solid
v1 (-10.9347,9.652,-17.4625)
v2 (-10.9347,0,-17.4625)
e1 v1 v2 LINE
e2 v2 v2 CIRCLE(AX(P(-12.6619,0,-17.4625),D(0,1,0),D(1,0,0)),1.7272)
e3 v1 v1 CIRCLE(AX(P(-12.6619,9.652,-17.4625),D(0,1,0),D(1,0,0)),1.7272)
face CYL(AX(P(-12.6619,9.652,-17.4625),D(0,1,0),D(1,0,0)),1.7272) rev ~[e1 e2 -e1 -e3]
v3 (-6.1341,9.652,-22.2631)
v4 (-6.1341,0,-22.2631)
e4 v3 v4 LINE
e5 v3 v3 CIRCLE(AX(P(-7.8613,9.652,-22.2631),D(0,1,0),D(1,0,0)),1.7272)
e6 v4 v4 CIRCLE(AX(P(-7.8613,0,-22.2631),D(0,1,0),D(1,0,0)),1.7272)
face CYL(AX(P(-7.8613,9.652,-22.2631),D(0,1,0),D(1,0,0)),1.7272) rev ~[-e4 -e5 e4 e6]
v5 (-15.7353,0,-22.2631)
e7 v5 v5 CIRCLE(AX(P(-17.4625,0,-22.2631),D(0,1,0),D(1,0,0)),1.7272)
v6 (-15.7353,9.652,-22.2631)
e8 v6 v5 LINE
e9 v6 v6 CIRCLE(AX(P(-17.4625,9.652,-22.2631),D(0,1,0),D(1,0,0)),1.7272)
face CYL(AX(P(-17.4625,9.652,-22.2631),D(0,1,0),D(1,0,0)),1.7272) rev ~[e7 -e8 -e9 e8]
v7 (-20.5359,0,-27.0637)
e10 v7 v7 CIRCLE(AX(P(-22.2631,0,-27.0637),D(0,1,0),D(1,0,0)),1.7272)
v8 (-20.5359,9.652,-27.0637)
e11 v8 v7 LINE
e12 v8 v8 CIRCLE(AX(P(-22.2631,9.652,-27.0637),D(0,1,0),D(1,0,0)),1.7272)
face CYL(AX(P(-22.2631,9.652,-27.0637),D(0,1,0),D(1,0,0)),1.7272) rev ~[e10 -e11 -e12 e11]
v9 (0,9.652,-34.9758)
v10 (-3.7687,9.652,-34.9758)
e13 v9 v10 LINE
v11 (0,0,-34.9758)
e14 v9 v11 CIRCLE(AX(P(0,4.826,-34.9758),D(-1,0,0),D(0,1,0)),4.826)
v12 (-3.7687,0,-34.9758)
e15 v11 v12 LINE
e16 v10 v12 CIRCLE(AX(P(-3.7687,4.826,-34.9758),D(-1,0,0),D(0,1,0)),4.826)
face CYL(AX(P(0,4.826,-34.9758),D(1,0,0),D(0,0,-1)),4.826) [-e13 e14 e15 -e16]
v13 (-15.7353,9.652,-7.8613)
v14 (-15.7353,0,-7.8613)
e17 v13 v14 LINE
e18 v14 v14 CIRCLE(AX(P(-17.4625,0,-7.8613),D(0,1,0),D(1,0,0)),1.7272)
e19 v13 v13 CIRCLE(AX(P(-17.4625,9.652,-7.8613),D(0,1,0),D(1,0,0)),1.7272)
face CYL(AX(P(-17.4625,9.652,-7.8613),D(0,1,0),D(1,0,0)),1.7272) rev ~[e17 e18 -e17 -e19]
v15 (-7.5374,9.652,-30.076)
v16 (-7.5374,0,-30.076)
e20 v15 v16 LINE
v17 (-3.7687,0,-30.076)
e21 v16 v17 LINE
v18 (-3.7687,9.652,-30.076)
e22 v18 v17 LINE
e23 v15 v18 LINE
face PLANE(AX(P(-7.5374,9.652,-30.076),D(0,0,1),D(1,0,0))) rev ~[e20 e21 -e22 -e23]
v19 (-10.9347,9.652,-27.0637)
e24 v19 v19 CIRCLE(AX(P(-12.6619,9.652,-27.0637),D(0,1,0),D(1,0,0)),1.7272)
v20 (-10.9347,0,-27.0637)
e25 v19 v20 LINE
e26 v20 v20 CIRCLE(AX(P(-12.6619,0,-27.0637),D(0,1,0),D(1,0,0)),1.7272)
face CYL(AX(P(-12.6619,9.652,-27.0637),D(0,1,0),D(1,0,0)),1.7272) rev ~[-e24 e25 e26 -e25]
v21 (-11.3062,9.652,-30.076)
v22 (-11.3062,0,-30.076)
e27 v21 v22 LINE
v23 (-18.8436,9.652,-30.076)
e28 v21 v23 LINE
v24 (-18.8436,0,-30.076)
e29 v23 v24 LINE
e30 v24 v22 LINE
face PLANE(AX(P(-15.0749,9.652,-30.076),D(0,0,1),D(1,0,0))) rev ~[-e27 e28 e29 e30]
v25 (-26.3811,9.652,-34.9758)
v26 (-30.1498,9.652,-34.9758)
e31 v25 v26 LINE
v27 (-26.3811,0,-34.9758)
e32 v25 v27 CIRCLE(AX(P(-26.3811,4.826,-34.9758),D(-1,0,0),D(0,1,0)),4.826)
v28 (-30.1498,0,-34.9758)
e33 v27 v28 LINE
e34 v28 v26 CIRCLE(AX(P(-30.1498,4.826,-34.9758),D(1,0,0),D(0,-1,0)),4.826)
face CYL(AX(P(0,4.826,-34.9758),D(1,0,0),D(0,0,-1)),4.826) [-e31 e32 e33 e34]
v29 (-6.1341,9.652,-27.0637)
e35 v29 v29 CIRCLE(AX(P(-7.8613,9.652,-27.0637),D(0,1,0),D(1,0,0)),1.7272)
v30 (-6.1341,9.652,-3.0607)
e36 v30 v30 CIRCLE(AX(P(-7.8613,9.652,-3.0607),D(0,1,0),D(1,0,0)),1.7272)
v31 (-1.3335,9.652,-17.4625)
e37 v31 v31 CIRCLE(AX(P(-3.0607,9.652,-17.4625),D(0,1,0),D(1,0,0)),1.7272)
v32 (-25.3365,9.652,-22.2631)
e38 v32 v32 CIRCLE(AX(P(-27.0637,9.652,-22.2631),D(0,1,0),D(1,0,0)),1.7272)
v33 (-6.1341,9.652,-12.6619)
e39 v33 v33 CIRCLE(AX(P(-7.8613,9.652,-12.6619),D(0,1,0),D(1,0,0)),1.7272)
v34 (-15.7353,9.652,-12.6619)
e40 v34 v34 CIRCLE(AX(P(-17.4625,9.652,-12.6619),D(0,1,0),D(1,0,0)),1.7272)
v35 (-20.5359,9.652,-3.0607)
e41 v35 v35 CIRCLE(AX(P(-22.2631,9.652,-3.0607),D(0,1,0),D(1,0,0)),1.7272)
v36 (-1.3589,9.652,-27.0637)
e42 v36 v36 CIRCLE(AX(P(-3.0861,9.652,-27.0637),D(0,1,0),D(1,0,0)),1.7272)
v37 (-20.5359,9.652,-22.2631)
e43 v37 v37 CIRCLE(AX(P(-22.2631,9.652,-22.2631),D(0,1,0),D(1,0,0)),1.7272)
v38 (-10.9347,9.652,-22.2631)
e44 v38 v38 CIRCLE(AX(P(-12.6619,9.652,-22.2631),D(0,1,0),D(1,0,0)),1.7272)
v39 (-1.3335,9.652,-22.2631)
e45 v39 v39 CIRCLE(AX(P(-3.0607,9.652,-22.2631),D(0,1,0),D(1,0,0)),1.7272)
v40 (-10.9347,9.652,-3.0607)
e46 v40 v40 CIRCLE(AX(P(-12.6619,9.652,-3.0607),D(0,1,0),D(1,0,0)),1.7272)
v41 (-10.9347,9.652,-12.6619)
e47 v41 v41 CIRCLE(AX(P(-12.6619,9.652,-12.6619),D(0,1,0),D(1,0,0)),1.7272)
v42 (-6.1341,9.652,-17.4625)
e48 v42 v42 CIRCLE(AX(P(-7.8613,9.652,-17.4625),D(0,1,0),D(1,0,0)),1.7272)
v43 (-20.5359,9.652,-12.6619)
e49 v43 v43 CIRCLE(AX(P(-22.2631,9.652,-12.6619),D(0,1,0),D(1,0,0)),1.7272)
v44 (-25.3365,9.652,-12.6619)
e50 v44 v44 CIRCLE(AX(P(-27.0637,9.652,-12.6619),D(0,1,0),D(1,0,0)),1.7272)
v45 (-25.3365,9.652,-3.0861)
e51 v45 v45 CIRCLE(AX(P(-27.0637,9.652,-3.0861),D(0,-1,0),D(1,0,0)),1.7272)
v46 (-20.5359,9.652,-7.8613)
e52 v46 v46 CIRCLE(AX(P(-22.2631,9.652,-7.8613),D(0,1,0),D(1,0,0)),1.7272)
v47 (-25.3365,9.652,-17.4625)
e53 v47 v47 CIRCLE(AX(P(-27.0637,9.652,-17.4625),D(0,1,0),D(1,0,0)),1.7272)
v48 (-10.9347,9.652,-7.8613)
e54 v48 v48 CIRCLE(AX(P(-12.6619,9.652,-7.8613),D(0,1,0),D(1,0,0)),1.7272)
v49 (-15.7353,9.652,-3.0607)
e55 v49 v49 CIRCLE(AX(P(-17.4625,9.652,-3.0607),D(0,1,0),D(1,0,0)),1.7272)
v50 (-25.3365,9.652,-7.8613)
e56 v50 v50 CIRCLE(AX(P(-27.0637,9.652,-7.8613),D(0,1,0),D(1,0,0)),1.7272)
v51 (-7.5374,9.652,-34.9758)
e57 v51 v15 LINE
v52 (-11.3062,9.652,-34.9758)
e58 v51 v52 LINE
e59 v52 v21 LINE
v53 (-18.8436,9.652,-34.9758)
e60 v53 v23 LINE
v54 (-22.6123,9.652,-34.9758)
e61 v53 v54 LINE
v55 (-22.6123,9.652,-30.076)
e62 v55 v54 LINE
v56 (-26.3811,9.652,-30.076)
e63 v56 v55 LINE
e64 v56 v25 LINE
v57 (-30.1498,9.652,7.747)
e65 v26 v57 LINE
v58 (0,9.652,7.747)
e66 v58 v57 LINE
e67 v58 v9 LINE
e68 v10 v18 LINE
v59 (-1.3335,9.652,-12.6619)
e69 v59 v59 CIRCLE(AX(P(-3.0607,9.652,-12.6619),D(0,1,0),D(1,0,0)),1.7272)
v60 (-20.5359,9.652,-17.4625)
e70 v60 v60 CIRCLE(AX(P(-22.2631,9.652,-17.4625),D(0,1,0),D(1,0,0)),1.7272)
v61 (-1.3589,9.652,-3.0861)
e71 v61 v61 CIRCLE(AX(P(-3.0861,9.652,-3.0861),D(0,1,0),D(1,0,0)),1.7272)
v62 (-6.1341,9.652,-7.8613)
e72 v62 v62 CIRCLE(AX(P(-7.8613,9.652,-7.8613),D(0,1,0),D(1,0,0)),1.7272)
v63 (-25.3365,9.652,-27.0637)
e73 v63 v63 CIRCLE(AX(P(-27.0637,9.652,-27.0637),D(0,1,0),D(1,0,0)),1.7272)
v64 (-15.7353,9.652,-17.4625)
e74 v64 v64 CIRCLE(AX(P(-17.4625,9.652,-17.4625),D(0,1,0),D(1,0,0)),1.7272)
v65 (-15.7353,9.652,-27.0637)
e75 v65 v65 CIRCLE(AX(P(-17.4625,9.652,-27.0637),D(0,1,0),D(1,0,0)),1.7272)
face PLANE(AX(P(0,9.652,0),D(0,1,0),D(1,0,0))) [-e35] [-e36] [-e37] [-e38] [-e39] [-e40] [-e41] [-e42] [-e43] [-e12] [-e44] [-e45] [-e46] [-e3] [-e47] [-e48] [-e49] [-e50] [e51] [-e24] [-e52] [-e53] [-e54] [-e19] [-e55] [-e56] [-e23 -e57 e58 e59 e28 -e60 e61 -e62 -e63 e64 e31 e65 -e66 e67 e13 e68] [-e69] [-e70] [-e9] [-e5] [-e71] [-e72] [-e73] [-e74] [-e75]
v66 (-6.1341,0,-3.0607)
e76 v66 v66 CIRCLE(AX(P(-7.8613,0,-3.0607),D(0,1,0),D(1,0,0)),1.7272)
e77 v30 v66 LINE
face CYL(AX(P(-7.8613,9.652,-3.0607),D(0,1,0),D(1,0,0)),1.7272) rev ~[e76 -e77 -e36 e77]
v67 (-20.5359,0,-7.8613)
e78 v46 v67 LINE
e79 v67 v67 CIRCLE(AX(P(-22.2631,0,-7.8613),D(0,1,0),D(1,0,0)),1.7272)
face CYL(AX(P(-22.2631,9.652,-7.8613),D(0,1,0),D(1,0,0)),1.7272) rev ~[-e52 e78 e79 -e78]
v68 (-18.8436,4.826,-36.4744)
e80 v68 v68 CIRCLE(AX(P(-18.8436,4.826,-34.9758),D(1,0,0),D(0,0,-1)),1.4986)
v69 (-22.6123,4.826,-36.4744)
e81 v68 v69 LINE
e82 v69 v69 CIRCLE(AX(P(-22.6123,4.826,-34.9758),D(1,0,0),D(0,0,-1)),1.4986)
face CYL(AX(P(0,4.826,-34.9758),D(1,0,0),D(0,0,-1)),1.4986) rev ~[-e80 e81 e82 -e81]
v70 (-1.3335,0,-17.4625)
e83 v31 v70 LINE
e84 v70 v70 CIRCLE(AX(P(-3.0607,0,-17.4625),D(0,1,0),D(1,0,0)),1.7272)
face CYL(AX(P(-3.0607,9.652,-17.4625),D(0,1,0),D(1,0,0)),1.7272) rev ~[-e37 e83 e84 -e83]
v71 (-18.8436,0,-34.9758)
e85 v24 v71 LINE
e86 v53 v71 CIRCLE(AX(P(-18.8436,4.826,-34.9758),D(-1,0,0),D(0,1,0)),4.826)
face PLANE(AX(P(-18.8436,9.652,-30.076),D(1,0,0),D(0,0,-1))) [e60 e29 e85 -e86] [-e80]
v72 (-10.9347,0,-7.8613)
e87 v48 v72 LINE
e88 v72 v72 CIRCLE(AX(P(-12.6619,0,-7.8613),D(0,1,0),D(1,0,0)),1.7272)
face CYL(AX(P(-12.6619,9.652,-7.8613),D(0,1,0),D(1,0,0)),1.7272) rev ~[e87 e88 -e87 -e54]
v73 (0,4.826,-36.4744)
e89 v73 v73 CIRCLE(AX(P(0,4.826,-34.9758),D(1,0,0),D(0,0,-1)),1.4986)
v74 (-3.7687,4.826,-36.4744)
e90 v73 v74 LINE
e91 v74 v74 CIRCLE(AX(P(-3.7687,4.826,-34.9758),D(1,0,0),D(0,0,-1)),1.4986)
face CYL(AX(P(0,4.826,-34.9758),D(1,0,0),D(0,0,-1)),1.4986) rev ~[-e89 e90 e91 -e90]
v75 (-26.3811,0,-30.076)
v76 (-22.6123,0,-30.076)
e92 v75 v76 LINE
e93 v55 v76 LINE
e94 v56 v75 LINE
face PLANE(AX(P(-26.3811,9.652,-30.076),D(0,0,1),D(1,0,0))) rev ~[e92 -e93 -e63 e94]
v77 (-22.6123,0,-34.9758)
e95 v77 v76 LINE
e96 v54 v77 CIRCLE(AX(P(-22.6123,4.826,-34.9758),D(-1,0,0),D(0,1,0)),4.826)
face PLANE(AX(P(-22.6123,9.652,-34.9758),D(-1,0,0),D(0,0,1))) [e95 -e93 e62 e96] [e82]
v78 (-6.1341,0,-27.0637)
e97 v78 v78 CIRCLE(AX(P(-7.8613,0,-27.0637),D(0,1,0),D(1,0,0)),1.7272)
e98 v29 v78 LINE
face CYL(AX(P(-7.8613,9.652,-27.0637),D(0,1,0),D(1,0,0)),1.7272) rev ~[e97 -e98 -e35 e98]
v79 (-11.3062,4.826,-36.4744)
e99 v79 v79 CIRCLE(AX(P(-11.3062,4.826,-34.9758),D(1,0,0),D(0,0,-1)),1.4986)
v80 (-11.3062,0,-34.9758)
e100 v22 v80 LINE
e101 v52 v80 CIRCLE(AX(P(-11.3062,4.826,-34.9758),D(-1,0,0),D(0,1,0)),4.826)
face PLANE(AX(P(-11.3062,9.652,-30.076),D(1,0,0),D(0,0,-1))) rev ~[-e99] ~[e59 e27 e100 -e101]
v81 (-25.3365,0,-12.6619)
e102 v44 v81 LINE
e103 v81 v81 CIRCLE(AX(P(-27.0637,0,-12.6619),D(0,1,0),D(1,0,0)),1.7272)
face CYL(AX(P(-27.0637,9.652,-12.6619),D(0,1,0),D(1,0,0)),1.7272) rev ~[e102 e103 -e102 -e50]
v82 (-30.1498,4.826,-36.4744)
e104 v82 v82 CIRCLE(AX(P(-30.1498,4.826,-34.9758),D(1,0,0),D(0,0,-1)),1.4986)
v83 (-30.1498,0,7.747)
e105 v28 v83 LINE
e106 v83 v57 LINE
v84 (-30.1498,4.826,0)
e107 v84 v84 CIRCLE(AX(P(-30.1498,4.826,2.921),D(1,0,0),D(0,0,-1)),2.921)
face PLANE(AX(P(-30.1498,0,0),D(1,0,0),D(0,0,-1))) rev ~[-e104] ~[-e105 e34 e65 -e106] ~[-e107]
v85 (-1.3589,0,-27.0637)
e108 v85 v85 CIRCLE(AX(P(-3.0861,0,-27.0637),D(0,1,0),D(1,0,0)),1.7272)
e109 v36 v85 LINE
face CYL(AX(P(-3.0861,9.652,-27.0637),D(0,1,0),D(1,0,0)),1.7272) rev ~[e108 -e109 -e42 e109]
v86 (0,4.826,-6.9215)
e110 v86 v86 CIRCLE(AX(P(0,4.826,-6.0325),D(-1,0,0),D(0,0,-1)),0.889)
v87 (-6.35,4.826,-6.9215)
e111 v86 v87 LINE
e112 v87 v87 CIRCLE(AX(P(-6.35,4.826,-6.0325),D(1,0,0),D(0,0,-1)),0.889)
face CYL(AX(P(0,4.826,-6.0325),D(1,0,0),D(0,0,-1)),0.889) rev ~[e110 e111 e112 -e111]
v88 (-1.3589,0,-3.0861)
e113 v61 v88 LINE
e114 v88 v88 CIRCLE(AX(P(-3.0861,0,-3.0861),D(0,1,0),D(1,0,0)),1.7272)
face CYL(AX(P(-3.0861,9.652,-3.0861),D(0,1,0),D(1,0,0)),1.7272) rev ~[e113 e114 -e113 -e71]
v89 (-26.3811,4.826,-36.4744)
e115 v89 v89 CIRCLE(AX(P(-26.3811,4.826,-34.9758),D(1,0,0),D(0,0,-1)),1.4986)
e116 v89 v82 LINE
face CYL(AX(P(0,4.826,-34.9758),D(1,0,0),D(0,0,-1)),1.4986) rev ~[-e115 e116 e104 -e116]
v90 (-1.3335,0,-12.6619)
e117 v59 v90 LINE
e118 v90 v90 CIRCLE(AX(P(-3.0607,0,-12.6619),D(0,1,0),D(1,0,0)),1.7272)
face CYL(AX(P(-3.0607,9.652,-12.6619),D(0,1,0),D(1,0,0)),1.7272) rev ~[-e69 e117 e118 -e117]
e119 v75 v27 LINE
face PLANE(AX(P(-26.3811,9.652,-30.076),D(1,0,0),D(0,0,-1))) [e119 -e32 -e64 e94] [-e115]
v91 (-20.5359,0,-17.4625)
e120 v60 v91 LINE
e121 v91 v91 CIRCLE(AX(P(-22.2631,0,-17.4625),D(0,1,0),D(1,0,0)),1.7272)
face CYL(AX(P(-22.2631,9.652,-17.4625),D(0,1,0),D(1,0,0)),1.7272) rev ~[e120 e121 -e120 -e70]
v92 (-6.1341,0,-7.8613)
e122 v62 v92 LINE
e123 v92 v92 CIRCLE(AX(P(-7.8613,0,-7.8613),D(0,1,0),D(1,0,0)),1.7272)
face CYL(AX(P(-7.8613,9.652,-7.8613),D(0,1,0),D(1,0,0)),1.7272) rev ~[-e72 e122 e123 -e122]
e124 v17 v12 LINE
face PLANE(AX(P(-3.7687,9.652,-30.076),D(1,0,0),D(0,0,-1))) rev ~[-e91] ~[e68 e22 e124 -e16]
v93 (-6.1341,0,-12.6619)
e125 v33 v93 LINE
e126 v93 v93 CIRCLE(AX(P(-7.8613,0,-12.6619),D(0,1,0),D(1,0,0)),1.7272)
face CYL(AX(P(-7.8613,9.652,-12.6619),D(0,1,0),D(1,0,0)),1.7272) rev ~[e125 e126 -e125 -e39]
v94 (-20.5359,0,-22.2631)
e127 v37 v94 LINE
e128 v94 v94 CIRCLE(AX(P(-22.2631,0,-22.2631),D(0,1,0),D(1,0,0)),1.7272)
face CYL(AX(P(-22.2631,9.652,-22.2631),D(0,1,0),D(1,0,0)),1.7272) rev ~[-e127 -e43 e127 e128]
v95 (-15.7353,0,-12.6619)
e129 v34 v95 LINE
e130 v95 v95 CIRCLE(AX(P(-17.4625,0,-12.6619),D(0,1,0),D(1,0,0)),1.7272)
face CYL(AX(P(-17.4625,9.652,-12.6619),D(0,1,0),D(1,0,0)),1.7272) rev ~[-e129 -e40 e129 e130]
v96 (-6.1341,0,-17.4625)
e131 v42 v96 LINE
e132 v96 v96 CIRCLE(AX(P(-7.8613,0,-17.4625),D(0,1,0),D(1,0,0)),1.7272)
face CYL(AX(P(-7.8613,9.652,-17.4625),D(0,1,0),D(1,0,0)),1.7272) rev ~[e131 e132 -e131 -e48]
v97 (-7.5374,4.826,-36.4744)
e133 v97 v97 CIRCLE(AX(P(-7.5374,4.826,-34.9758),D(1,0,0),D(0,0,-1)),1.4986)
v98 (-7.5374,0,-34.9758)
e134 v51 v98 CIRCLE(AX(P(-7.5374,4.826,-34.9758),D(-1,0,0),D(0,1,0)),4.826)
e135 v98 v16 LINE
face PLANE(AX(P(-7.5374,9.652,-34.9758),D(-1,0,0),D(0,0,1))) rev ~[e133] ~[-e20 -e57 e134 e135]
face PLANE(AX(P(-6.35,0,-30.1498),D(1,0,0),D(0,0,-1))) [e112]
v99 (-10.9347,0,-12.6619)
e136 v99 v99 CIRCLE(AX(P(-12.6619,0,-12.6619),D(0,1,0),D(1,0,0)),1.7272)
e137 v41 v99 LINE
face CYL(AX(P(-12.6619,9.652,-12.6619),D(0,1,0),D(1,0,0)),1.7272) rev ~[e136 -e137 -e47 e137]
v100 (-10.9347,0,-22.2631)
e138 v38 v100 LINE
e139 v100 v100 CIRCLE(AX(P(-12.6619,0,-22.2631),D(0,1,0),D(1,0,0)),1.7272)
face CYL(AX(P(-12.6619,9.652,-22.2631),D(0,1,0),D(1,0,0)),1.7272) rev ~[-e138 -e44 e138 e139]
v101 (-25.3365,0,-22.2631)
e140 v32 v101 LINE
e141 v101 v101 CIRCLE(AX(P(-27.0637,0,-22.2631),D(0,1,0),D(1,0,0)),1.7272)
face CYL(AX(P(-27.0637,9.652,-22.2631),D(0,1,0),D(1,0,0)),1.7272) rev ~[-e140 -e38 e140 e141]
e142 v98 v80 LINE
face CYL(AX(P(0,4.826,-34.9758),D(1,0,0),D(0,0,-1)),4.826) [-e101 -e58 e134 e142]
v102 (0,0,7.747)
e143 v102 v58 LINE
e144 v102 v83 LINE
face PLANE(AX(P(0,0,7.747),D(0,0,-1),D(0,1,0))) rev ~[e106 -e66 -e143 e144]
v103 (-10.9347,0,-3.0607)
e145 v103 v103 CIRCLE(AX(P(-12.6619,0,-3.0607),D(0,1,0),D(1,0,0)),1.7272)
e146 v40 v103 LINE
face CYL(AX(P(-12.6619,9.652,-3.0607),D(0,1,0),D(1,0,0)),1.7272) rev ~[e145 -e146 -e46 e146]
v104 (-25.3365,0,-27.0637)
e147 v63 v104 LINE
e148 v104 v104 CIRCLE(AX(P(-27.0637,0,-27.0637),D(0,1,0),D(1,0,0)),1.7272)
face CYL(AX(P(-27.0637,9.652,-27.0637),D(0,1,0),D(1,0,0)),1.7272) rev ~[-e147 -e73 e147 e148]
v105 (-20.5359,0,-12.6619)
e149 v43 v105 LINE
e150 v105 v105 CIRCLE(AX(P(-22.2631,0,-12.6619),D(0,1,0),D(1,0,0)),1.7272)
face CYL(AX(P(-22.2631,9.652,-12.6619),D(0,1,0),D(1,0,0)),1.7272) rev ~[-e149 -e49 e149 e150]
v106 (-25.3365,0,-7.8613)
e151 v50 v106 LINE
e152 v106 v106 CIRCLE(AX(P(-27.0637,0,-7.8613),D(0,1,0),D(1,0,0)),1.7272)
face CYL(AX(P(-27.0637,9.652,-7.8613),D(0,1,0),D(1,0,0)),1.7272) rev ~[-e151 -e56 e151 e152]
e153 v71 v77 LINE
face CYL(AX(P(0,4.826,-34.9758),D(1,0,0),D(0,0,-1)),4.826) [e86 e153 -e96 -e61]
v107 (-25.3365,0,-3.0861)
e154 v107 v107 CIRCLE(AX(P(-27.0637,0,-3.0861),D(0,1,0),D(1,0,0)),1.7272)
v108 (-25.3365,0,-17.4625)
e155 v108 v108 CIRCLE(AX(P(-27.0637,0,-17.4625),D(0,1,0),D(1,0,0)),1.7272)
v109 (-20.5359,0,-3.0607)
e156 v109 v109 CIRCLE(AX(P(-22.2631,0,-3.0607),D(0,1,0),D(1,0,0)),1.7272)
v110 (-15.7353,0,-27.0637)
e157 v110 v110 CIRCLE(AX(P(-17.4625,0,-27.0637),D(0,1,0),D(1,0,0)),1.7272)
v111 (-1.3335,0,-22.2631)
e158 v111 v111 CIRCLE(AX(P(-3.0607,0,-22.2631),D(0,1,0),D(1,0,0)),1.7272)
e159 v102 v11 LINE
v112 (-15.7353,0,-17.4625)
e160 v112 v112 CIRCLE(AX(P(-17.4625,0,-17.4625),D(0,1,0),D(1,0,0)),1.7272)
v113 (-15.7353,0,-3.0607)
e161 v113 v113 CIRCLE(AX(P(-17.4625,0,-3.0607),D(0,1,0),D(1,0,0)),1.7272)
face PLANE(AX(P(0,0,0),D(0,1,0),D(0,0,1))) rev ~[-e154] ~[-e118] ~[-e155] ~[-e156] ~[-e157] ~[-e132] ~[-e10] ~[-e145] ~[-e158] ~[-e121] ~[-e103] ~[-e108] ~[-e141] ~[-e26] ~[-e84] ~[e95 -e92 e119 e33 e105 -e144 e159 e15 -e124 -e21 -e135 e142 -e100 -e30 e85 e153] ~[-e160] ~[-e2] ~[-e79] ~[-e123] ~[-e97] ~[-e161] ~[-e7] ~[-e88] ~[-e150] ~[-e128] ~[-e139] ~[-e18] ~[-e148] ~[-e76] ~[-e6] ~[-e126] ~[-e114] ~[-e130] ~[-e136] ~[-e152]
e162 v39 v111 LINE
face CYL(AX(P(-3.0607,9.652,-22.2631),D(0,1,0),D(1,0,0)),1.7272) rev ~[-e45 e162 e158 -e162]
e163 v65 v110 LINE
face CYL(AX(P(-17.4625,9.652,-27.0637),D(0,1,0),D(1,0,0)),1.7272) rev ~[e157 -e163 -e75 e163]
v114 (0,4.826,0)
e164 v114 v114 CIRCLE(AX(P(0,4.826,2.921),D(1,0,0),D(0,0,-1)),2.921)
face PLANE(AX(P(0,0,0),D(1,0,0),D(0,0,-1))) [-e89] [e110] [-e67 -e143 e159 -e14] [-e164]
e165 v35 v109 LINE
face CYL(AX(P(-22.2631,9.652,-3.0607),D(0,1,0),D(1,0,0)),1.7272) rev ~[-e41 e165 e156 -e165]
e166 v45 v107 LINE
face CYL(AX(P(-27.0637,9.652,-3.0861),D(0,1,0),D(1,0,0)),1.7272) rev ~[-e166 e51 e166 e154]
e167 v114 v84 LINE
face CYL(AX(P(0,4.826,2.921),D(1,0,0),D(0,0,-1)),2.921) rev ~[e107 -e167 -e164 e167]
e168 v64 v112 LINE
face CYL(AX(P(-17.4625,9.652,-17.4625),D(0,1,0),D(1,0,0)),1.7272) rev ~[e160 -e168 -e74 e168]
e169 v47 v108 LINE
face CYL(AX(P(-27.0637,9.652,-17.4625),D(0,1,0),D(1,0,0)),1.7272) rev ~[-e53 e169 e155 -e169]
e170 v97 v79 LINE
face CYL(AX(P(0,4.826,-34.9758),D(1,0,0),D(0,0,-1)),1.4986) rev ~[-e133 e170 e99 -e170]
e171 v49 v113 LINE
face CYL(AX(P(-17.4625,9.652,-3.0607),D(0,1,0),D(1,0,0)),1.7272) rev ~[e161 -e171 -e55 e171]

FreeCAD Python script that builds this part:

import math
import FreeCAD as App
import Part
import Sketcher
Q = App.Units.Quantity


def add_polygon(sketch, points):
    """Adds a closed chain of lines whose ends are joined by coincident constraints."""
    first, n = sketch.GeometryCount, len(points)
    for a, b in zip(points, points[1:] + points[:1]):
        sketch.addGeometry(Part.LineSegment(App.Vector(*a, 0), App.Vector(*b, 0)), False)
    for i in range(n):
        sketch.addConstraint(Sketcher.Constraint("Coincident", first + i, 2, first + (i + 1) % n, 1))

doc = App.newDocument("Part")
body = doc.addObject("PartDesign::Body", "Body")

# Sketch on XZ plane
sketch1 = body.newObject("Sketcher::SketchObject", "Sketch")
sketch1.AttachmentSupport = (doc.getObject("XZ_Plane"), [""])
sketch1.MapMode = "FlatFace"
add_polygon(sketch1, [(-30, 0), (0, 0), (0, -30), (-30, -30)])  # lines 0-3
sketch1.addConstraint(Sketcher.Constraint("Horizontal", 0))
sketch1.addConstraint(Sketcher.Constraint("Vertical", 1))
sketch1.addConstraint(Sketcher.Constraint("Horizontal", 2))
sketch1.addConstraint(Sketcher.Constraint("Vertical", 3))
sketch1.addConstraint(Sketcher.Constraint("Coincident", 0, 2, -1, 1))
sketch1.addConstraint(Sketcher.Constraint("Equal", 2, 1))
sketch1.addConstraint(Sketcher.Constraint("DistanceX", 0, 1, 0, 2, Q("1.187 in")))
pad1 = body.newObject("PartDesign::Pad", "Pad")
pad1.Profile = sketch1
pad1.Length = Q("0.38 in")
pad1.Reversed = True

# Sketch on XZ plane
sketch2 = body.newObject("Sketcher::SketchObject", "Sketch001")
sketch2.AttachmentSupport = (doc.getObject("XZ_Plane"), [""])
sketch2.MapMode = "FlatFace"
sketch2.AttachmentOffset = App.Placement(App.Vector(0, 0, -0.38 * 25.4), App.Rotation())
sketch2.addGeometry(Part.Circle(App.Vector(-27.1, -3.1, 0), App.Vector(0, 0, 1), 1.7), False)
sketch2.addGeometry(Part.Circle(App.Vector(-3.1, -3.1, 0), App.Vector(0, 0, 1), 1.7), False)
sketch2.addGeometry(Part.Circle(App.Vector(-27.1, -27.1, 0), App.Vector(0, 0, 1), 1.7), False)
sketch2.addGeometry(Part.Circle(App.Vector(-3.1, -27.1, 0), App.Vector(0, 0, 1), 1.7), False)
sketch2.addConstraint(Sketcher.Constraint("Equal", 0, 1))
sketch2.addConstraint(Sketcher.Constraint("Equal", 1, 2))
sketch2.addConstraint(Sketcher.Constraint("Equal", 2, 3))
sketch2.addConstraint(Sketcher.Constraint("Horizontal", 0, 3, 1, 3))
sketch2.addConstraint(Sketcher.Constraint("Horizontal", 2, 3, 3, 3))
sketch2.addConstraint(Sketcher.Constraint("Vertical", 0, 3, 2, 3))
sketch2.addConstraint(Sketcher.Constraint("Vertical", 1, 3, 3, 3))
sketch2.addConstraint(Sketcher.Constraint("Diameter", 0, Q("0.136 in")))
sketch2.addConstraint(Sketcher.Constraint("DistanceX", 0, 3, 1, 3, Q("0.944 in")))
sketch2.addConstraint(Sketcher.Constraint("DistanceY", 2, 3, 0, 3, Q("0.944 in")))
sketch2.addConstraint(Sketcher.Constraint("DistanceX", 0, 3, -1, 1, Q("1.0655 in")))
sketch2.addConstraint(Sketcher.Constraint("DistanceY", 0, 3, -1, 1, Q("0.1215 in")))
pocket1 = body.newObject("PartDesign::Pocket", "Pocket")
pocket1.Profile = sketch2
pocket1.Length = Q("1.2 in")
pocket1.Reversed = True

# Sketch on YZ plane
sketch3 = body.newObject("Sketcher::SketchObject", "Sketch002")
sketch3.AttachmentSupport = (doc.getObject("YZ_Plane"), [""])
sketch3.MapMode = "FlatFace"
add_polygon(sketch3, [(4.8, 0), (9.7, 0), (9.7, 7.7), (0, 7.7), (0, 0)])  # lines 0-4
sketch3.addGeometry(Part.Circle(App.Vector(4.8, 2.9, 0), App.Vector(0, 0, 1), 2.9), False)  # 5
sketch3.addConstraint(Sketcher.Constraint("Horizontal", 0))
sketch3.addConstraint(Sketcher.Constraint("Vertical", 1))
sketch3.addConstraint(Sketcher.Constraint("Horizontal", 2))
sketch3.addConstraint(Sketcher.Constraint("Vertical", 3))
sketch3.addConstraint(Sketcher.Constraint("Horizontal", 4))
sketch3.addConstraint(Sketcher.Constraint("Coincident", 3, 2, -1, 1))
sketch3.addConstraint(Sketcher.Constraint("Vertical", 5, 3, 4, 2))
sketch3.addConstraint(Sketcher.Constraint("Equal", 0, 4))
sketch3.addConstraint(Sketcher.Constraint("Diameter", 5, Q("0.23 in")))
sketch3.addConstraint(Sketcher.Constraint("DistanceX", 0, 1, 0, 2, Q("0.19 in")))
sketch3.addConstraint(Sketcher.Constraint("DistanceY", 1, 1, 1, 2, Q("0.305 in")))
sketch3.addConstraint(Sketcher.Constraint("DistanceY", 5, 3, 1, 2, Q("0.19 in")))
pad2 = body.newObject("PartDesign::Pad", "Pad001")
pad2.Profile = sketch3
pad2.Length = Q("1.187 in")
pad2.Reversed = True

# Sketch on XZ plane
sketch4 = body.newObject("Sketcher::SketchObject", "Sketch003")
sketch4.AttachmentSupport = (doc.getObject("XZ_Plane"), [""])
sketch4.MapMode = "FlatFace"
sketch4.AttachmentOffset = App.Placement(App.Vector(0, 0, -0.38 * 25.4), App.Rotation())
sketch4.addGeometry(Part.Circle(App.Vector(-27.1, -22.3, 0), App.Vector(0, 0, 1), 1.7), False)
sketch4.addGeometry(Part.Circle(App.Vector(-27.1, -17.5, 0), App.Vector(0, 0, 1), 1.7), False)
sketch4.addGeometry(Part.Circle(App.Vector(-27.1, -12.7, 0), App.Vector(0, 0, 1), 1.7), False)
sketch4.addGeometry(Part.Circle(App.Vector(-27.1, -7.9, 0), App.Vector(0, 0, 1), 1.7), False)
sketch4.addGeometry(Part.Circle(App.Vector(-22.3, -27.1, 0), App.Vector(0, 0, 1), 1.7), False)
sketch4.addGeometry(Part.Circle(App.Vector(-22.3, -22.3, 0), App.Vector(0, 0, 1), 1.7), False)
sketch4.addGeometry(Part.Circle(App.Vector(-22.3, -17.5, 0), App.Vector(0, 0, 1), 1.7), False)
sketch4.addGeometry(Part.Circle(App.Vector(-22.3, -12.7, 0), App.Vector(0, 0, 1), 1.7), False)
sketch4.addGeometry(Part.Circle(App.Vector(-22.3, -7.9, 0), App.Vector(0, 0, 1), 1.7), False)
sketch4.addGeometry(Part.Circle(App.Vector(-22.3, -3.1, 0), App.Vector(0, 0, 1), 1.7), False)
sketch4.addGeometry(Part.Circle(App.Vector(-17.5, -27.1, 0), App.Vector(0, 0, 1), 1.7), False)
sketch4.addGeometry(Part.Circle(App.Vector(-17.5, -22.3, 0), App.Vector(0, 0, 1), 1.7), False)
sketch4.addGeometry(Part.Circle(App.Vector(-17.5, -17.5, 0), App.Vector(0, 0, 1), 1.7), False)
sketch4.addGeometry(Part.Circle(App.Vector(-17.5, -12.7, 0), App.Vector(0, 0, 1), 1.7), False)
sketch4.addGeometry(Part.Circle(App.Vector(-17.5, -7.9, 0), App.Vector(0, 0, 1), 1.7), False)
sketch4.addGeometry(Part.Circle(App.Vector(-17.5, -3.1, 0), App.Vector(0, 0, 1), 1.7), False)
sketch4.addGeometry(Part.Circle(App.Vector(-12.7, -27.1, 0), App.Vector(0, 0, 1), 1.7), False)
sketch4.addGeometry(Part.Circle(App.Vector(-12.7, -22.3, 0), App.Vector(0, 0, 1), 1.7), False)
sketch4.addGeometry(Part.Circle(App.Vector(-12.7, -17.5, 0), App.Vector(0, 0, 1), 1.7), False)
sketch4.addGeometry(Part.Circle(App.Vector(-12.7, -12.7, 0), App.Vector(0, 0, 1), 1.7), False)
sketch4.addGeometry(Part.Circle(App.Vector(-12.7, -7.9, 0), App.Vector(0, 0, 1), 1.7), False)
sketch4.addGeometry(Part.Circle(App.Vector(-12.7, -3.1, 0), App.Vector(0, 0, 1), 1.7), False)
sketch4.addGeometry(Part.Circle(App.Vector(-7.9, -27.1, 0), App.Vector(0, 0, 1), 1.7), False)
sketch4.addGeometry(Part.Circle(App.Vector(-7.9, -22.3, 0), App.Vector(0, 0, 1), 1.7), False)
sketch4.addGeometry(Part.Circle(App.Vector(-7.9, -17.5, 0), App.Vector(0, 0, 1), 1.7), False)
sketch4.addGeometry(Part.Circle(App.Vector(-7.9, -12.7, 0), App.Vector(0, 0, 1), 1.7), False)
sketch4.addGeometry(Part.Circle(App.Vector(-7.9, -7.9, 0), App.Vector(0, 0, 1), 1.7), False)
sketch4.addGeometry(Part.Circle(App.Vector(-7.9, -3.1, 0), App.Vector(0, 0, 1), 1.7), False)
sketch4.addGeometry(Part.Circle(App.Vector(-3.1, -22.3, 0), App.Vector(0, 0, 1), 1.7), False)
sketch4.addGeometry(Part.Circle(App.Vector(-3.1, -17.5, 0), App.Vector(0, 0, 1), 1.7), False)
sketch4.addGeometry(Part.Circle(App.Vector(-3.1, -12.7, 0), App.Vector(0, 0, 1), 1.7), False)
sketch4.addGeometry(Part.Circle(App.Vector(-3.1, -7.9, 0), App.Vector(0, 0, 1), 1.7), False)
sketch4.addConstraint(Sketcher.Constraint("Equal", 0, 1))
sketch4.addConstraint(Sketcher.Constraint("Equal", 1, 2))
sketch4.addConstraint(Sketcher.Constraint("Equal", 2, 3))
sketch4.addConstraint(Sketcher.Constraint("Equal", 3, 4))
sketch4.addConstraint(Sketcher.Constraint("Equal", 4, 5))
sketch4.addConstraint(Sketcher.Constraint("Equal", 5, 6))
sketch4.addConstraint(Sketcher.Constraint("Equal", 6, 7))
sketch4.addConstraint(Sketcher.Constraint("Equal", 7, 8))
sketch4.addConstraint(Sketcher.Constraint("Equal", 8, 9))
sketch4.addConstraint(Sketcher.Constraint("Equal", 9, 10))
sketch4.addConstraint(Sketcher.Constraint("Equal", 10, 11))
sketch4.addConstraint(Sketcher.Constraint("Equal", 11, 12))
sketch4.addConstraint(Sketcher.Constraint("Equal", 12, 13))
sketch4.addConstraint(Sketcher.Constraint("Equal", 13, 14))
sketch4.addConstraint(Sketcher.Constraint("Equal", 14, 15))
sketch4.addConstraint(Sketcher.Constraint("Equal", 15, 16))
sketch4.addConstraint(Sketcher.Constraint("Equal", 16, 17))
sketch4.addConstraint(Sketcher.Constraint("Equal", 17, 18))
sketch4.addConstraint(Sketcher.Constraint("Equal", 18, 19))
sketch4.addConstraint(Sketcher.Constraint("Equal", 19, 20))
sketch4.addConstraint(Sketcher.Constraint("Equal", 20, 21))
sketch4.addConstraint(Sketcher.Constraint("Equal", 21, 22))
sketch4.addConstraint(Sketcher.Constraint("Equal", 22, 23))
sketch4.addConstraint(Sketcher.Constraint("Equal", 23, 24))
sketch4.addConstraint(Sketcher.Constraint("Equal", 24, 25))
sketch4.addConstraint(Sketcher.Constraint("Equal", 25, 26))
sketch4.addConstraint(Sketcher.Constraint("Equal", 26, 27))
sketch4.addConstraint(Sketcher.Constraint("Equal", 27, 28))
sketch4.addConstraint(Sketcher.Constraint("Equal", 28, 29))
sketch4.addConstraint(Sketcher.Constraint("Equal", 29, 30))
sketch4.addConstraint(Sketcher.Constraint("Equal", 30, 31))
sketch4.addConstraint(Sketcher.Constraint("Horizontal", 0, 3, 5, 3))
sketch4.addConstraint(Sketcher.Constraint("Horizontal", 1, 3, 6, 3))
sketch4.addConstraint(Sketcher.Constraint("Horizontal", 2, 3, 7, 3))
sketch4.addConstraint(Sketcher.Constraint("Horizontal", 3, 3, 8, 3))
sketch4.addConstraint(Sketcher.Constraint("Horizontal", 4, 3, 10, 3))
sketch4.addConstraint(Sketcher.Constraint("Horizontal", 5, 3, 11, 3))
sketch4.addConstraint(Sketcher.Constraint("Horizontal", 6, 3, 12, 3))
sketch4.addConstraint(Sketcher.Constraint("Horizontal", 7, 3, 13, 3))
sketch4.addConstraint(Sketcher.Constraint("Horizontal", 8, 3, 14, 3))
sketch4.addConstraint(Sketcher.Constraint("Horizontal", 9, 3, 15, 3))
sketch4.addConstraint(Sketcher.Constraint("Horizontal", 10, 3, 16, 3))
sketch4.addConstraint(Sketcher.Constraint("Horizontal", 11, 3, 17, 3))
sketch4.addConstraint(Sketcher.Constraint("Horizontal", 12, 3, 18, 3))
sketch4.addConstraint(Sketcher.Constraint("Horizontal", 13, 3, 19, 3))
sketch4.addConstraint(Sketcher.Constraint("Horizontal", 14, 3, 20, 3))
sketch4.addConstraint(Sketcher.Constraint("Horizontal", 15, 3, 21, 3))
sketch4.addConstraint(Sketcher.Constraint("Horizontal", 16, 3, 22, 3))
sketch4.addConstraint(Sketcher.Constraint("Horizontal", 17, 3, 23, 3))
sketch4.addConstraint(Sketcher.Constraint("Horizontal", 18, 3, 24, 3))
sketch4.addConstraint(Sketcher.Constraint("Horizontal", 19, 3, 25, 3))
sketch4.addConstraint(Sketcher.Constraint("Horizontal", 20, 3, 26, 3))
sketch4.addConstraint(Sketcher.Constraint("Horizontal", 21, 3, 27, 3))
sketch4.addConstraint(Sketcher.Constraint("Horizontal", 23, 3, 28, 3))
sketch4.addConstraint(Sketcher.Constraint("Horizontal", 24, 3, 29, 3))
sketch4.addConstraint(Sketcher.Constraint("Horizontal", 25, 3, 30, 3))
sketch4.addConstraint(Sketcher.Constraint("Horizontal", 26, 3, 31, 3))
sketch4.addConstraint(Sketcher.Constraint("Vertical", 0, 3, 1, 3))
sketch4.addConstraint(Sketcher.Constraint("Vertical", 1, 3, 2, 3))
sketch4.addConstraint(Sketcher.Constraint("Vertical", 2, 3, 3, 3))
sketch4.addConstraint(Sketcher.Constraint("Vertical", 4, 3, 5, 3))
sketch4.addConstraint(Sketcher.Constraint("Vertical", 5, 3, 6, 3))
sketch4.addConstraint(Sketcher.Constraint("Vertical", 6, 3, 7, 3))
sketch4.addConstraint(Sketcher.Constraint("Vertical", 7, 3, 8, 3))
sketch4.addConstraint(Sketcher.Constraint("Vertical", 8, 3, 9, 3))
sketch4.addConstraint(Sketcher.Constraint("Vertical", 10, 3, 11, 3))
sketch4.addConstraint(Sketcher.Constraint("Vertical", 11, 3, 12, 3))
sketch4.addConstraint(Sketcher.Constraint("Vertical", 12, 3, 13, 3))
sketch4.addConstraint(Sketcher.Constraint("Vertical", 13, 3, 14, 3))
sketch4.addConstraint(Sketcher.Constraint("Vertical", 14, 3, 15, 3))
sketch4.addConstraint(Sketcher.Constraint("Vertical", 16, 3, 17, 3))
sketch4.addConstraint(Sketcher.Constraint("Vertical", 17, 3, 18, 3))
sketch4.addConstraint(Sketcher.Constraint("Vertical", 18, 3, 19, 3))
sketch4.addConstraint(Sketcher.Constraint("Vertical", 19, 3, 20, 3))
sketch4.addConstraint(Sketcher.Constraint("Vertical", 20, 3, 21, 3))
sketch4.addConstraint(Sketcher.Constraint("Vertical", 22, 3, 23, 3))
sketch4.addConstraint(Sketcher.Constraint("Vertical", 23, 3, 24, 3))
sketch4.addConstraint(Sketcher.Constraint("Vertical", 24, 3, 25, 3))
sketch4.addConstraint(Sketcher.Constraint("Vertical", 25, 3, 26, 3))
sketch4.addConstraint(Sketcher.Constraint("Vertical", 26, 3, 27, 3))
sketch4.addConstraint(Sketcher.Constraint("Vertical", 28, 3, 29, 3))
sketch4.addConstraint(Sketcher.Constraint("Vertical", 29, 3, 30, 3))
sketch4.addConstraint(Sketcher.Constraint("Vertical", 30, 3, 31, 3))
sketch4.addConstraint(Sketcher.Constraint("Diameter", 0, Q("0.136 in")))
sketch4.addConstraint(Sketcher.Constraint("DistanceY", 0, 3, 1, 3, Q("0.189 in")))
sketch4.addConstraint(Sketcher.Constraint("DistanceY", 1, 3, 2, 3, Q("0.189 in")))
sketch4.addConstraint(Sketcher.Constraint("DistanceY", 2, 3, 3, 3, Q("0.189 in")))
sketch4.addConstraint(Sketcher.Constraint("DistanceX", 0, 3, 4, 3, Q("0.189 in")))
sketch4.addConstraint(Sketcher.Constraint("DistanceY", 4, 3, 0, 3, Q("0.189 in")))
sketch4.addConstraint(Sketcher.Constraint("DistanceY", 8, 3, 9, 3, Q("0.189 in")))
sketch4.addConstraint(Sketcher.Constraint("DistanceX", 4, 3, 10, 3, Q("0.189 in")))
sketch4.addConstraint(Sketcher.Constraint("DistanceX", 10, 3, 16, 3, Q("0.189 in")))
sketch4.addConstraint(Sketcher.Constraint("DistanceX", 16, 3, 22, 3, Q("0.189 in")))
sketch4.addConstraint(Sketcher.Constraint("DistanceX", 23, 3, 28, 3, Q("0.189 in")))
sketch4.addConstraint(Sketcher.Constraint("DistanceY", 1, 3, -1, 1, Q("0.6875 in")))
sketch4.addConstraint(Sketcher.Constraint("DistanceX", 10, 3, -1, 1, Q("0.6875 in")))
pocket2 = body.newObject("PartDesign::Pocket", "Pocket001")
pocket2.Profile = sketch4
pocket2.Length = Q("1.2 in")
pocket2.Reversed = True

# Sketch on XZ plane
sketch5 = body.newObject("Sketcher::SketchObject", "Sketch004")
sketch5.AttachmentSupport = (doc.getObject("XZ_Plane"), [""])
sketch5.MapMode = "FlatFace"
sketch5.AttachmentOffset = App.Placement(App.Vector(0, 0, -0.38 * 25.4), App.Rotation())
sketch5.addGeometry(Part.Circle(App.Vector(-3.1, -7.9, 0), App.Vector(0, 0, 1), 1.7), False)
sketch5.addConstraint(Sketcher.Constraint("Diameter", 0, Q("0.136 in")))
sketch5.addConstraint(Sketcher.Constraint("DistanceX", 0, 3, -1, 1, Q("0.1205 in")))
sketch5.addConstraint(Sketcher.Constraint("DistanceY", 0, 3, -1, 1, Q("0.3095 in")))
pad3 = body.newObject("PartDesign::Pad", "Pad002")
pad3.Profile = sketch5
pad3.Length = Q("0.38 in")

# Sketch on YZ plane
sketch6 = body.newObject("Sketcher::SketchObject", "Sketch005")
sketch6.AttachmentSupport = (doc.getObject("YZ_Plane"), [""])
sketch6.MapMode = "FlatFace"
sketch6.addGeometry(Part.Circle(App.Vector(4.8, -6, 0), App.Vector(0, 0, 1), 0.9), False)
sketch6.addConstraint(Sketcher.Constraint("Diameter", 0, Q("0.07 in")))
sketch6.addConstraint(Sketcher.Constraint("DistanceX", -1, 1, 0, 3, Q("0.19 in")))
sketch6.addConstraint(Sketcher.Constraint("DistanceY", 0, 3, -1, 1, Q("0.2375 in")))
pocket3 = body.newObject("PartDesign::Pocket", "Pocket002")
pocket3.Profile = sketch6
pocket3.Length = Q("0.25 in")

# Sketch on YZ plane
sketch7 = body.newObject("Sketcher::SketchObject", "Sketch006")
sketch7.AttachmentSupport = (doc.getObject("YZ_Plane"), [""])
sketch7.MapMode = "FlatFace"
sketch7.addGeometry(Part.LineSegment(App.Vector(9.7, -35, 0), App.Vector(9.7, -30.1, 0)), False)
sketch7.addGeometry(Part.LineSegment(App.Vector(9.7, -30.1, 0), App.Vector(0, -30.1, 0)), False)
sketch7.addGeometry(Part.LineSegment(App.Vector(0, -30.1, 0), App.Vector(0, -35, 0)), False)
sketch7.addGeometry(Part.ArcOfCircle(Part.Circle(App.Vector(4.8, -35, 0), App.Vector(0, 0, 1), 4.8), math.radians(180), math.radians(360)), False)
sketch7.addConstraint(Sketcher.Constraint("Coincident", 0, 2, 1, 1))
sketch7.addConstraint(Sketcher.Constraint("Coincident", 1, 2, 2, 1))
sketch7.addConstraint(Sketcher.Constraint("Tangent", 2, 2, 3, 1))
sketch7.addConstraint(Sketcher.Constraint("Tangent", 3, 2, 0, 1))
sketch7.addConstraint(Sketcher.Constraint("Vertical", 0))
sketch7.addConstraint(Sketcher.Constraint("Horizontal", 1))
sketch7.addConstraint(Sketcher.Constraint("Vertical", 2))
sketch7.addConstraint(Sketcher.Constraint("PointOnObject", 1, 2, -2))
sketch7.addConstraint(Sketcher.Constraint("Radius", 3, Q("0.19 in")))
sketch7.addConstraint(Sketcher.Constraint("DistanceY", 0, 1, 0, 2, Q("0.19 in")))
sketch7.addConstraint(Sketcher.Constraint("DistanceY", 3, 3, -1, 1, Q("1.377 in")))
pad4 = body.newObject("PartDesign::Pad", "Pad003")
pad4.Profile = sketch7
pad4.Length = Q("1.187 in")
pad4.Reversed = True

# Sketch on YZ plane
sketch8 = body.newObject("Sketcher::SketchObject", "Sketch007")
sketch8.AttachmentSupport = (doc.getObject("YZ_Plane"), [""])
sketch8.MapMode = "FlatFace"
sketch8.addGeometry(Part.Circle(App.Vector(4.8, -35, 0), App.Vector(0, 0, 1), 1.5), False)
sketch8.addConstraint(Sketcher.Constraint("Diameter", 0, Q("0.118 in")))
sketch8.addConstraint(Sketcher.Constraint("DistanceX", -1, 1, 0, 3, Q("0.19 in")))
sketch8.addConstraint(Sketcher.Constraint("DistanceY", 0, 3, -1, 1, Q("1.377 in")))
pocket4 = body.newObject("PartDesign::Pocket", "Pocket003")
pocket4.Profile = sketch8
pocket4.Type = "ThroughAll"

# Sketch on XZ plane
sketch9 = body.newObject("Sketcher::SketchObject", "Sketch008")
sketch9.AttachmentSupport = (doc.getObject("XZ_Plane"), [""])
sketch9.MapMode = "FlatFace"
sketch9.AttachmentOffset = App.Placement(App.Vector(0, 0, -0.38 * 25.4), App.Rotation())
add_polygon(sketch9, [(-3.8, -30.1), (-3.8, -39.8), (-7.5, -39.8), (-7.5, -30.1)])  # lines 0-3
add_polygon(sketch9, [(-11.3, -30.1), (-11.3, -39.8), (-18.8, -39.8), (-18.8, -30.1)])  # lines 4-7
add_polygon(sketch9, [(-26.4, -30.1), (-22.6, -30.1), (-22.6, -39.8), (-26.4, -39.8)])  # lines 8-11
sketch9.addConstraint(Sketcher.Constraint("Vertical", 0))
sketch9.addConstraint(Sketcher.Constraint("Horizontal", 1))
sketch9.addConstraint(Sketcher.Constraint("Vertical", 2))
sketch9.addConstraint(Sketcher.Constraint("Horizontal", 3))
sketch9.addConstraint(Sketcher.Constraint("Vertical", 4))
sketch9.addConstraint(Sketcher.Constraint("Horizontal", 5))
sketch9.addConstraint(Sketcher.Constraint("Vertical", 6))
sketch9.addConstraint(Sketcher.Constraint("Horizontal", 7))
sketch9.addConstraint(Sketcher.Constraint("Horizontal", 8))
sketch9.addConstraint(Sketcher.Constraint("Vertical", 9))
sketch9.addConstraint(Sketcher.Constraint("Horizontal", 10))
sketch9.addConstraint(Sketcher.Constraint("Vertical", 11))
sketch9.addConstraint(Sketcher.Constraint("Horizontal", 1, 2, 4, 2))
sketch9.addConstraint(Sketcher.Constraint("Horizontal", 3, 2, 6, 2))
sketch9.addConstraint(Sketcher.Constraint("Horizontal", 7, 2, 8, 2))
sketch9.addConstraint(Sketcher.Constraint("Horizontal", 5, 2, 9, 2))
sketch9.addConstraint(Sketcher.Constraint("Equal", 3, 8))
sketch9.addConstraint(Sketcher.Constraint("DistanceY", 0, 2, 0, 1, Q("0.3829 in")))
sketch9.addConstraint(Sketcher.Constraint("DistanceY", 0, 2, -1, 1, Q("1.567 in")))
sketch9.addConstraint(Sketcher.Constraint("DistanceX", 1, 2, 1, 1, Q("3.7687 mm")))
sketch9.addConstraint(Sketcher.Constraint("DistanceX", 5, 2, 5, 1, Q("7.5374 mm")))
sketch9.addConstraint(Sketcher.Constraint("DistanceX", 5, 2, 0, 2, Q("0.5935 in")))
sketch9.addConstraint(Sketcher.Constraint("DistanceX", 8, 2, 2, 2, Q("0.5935 in")))
sketch9.addConstraint(Sketcher.Constraint("DistanceX", 0, 2, -1, 1, Q("3.7687 mm")))
pocket5 = body.newObject("PartDesign::Pocket", "Pocket004")
pocket5.Profile = sketch9
pocket5.Type = "ThroughAll"
pocket5.Reversed = True

doc.recompute()
